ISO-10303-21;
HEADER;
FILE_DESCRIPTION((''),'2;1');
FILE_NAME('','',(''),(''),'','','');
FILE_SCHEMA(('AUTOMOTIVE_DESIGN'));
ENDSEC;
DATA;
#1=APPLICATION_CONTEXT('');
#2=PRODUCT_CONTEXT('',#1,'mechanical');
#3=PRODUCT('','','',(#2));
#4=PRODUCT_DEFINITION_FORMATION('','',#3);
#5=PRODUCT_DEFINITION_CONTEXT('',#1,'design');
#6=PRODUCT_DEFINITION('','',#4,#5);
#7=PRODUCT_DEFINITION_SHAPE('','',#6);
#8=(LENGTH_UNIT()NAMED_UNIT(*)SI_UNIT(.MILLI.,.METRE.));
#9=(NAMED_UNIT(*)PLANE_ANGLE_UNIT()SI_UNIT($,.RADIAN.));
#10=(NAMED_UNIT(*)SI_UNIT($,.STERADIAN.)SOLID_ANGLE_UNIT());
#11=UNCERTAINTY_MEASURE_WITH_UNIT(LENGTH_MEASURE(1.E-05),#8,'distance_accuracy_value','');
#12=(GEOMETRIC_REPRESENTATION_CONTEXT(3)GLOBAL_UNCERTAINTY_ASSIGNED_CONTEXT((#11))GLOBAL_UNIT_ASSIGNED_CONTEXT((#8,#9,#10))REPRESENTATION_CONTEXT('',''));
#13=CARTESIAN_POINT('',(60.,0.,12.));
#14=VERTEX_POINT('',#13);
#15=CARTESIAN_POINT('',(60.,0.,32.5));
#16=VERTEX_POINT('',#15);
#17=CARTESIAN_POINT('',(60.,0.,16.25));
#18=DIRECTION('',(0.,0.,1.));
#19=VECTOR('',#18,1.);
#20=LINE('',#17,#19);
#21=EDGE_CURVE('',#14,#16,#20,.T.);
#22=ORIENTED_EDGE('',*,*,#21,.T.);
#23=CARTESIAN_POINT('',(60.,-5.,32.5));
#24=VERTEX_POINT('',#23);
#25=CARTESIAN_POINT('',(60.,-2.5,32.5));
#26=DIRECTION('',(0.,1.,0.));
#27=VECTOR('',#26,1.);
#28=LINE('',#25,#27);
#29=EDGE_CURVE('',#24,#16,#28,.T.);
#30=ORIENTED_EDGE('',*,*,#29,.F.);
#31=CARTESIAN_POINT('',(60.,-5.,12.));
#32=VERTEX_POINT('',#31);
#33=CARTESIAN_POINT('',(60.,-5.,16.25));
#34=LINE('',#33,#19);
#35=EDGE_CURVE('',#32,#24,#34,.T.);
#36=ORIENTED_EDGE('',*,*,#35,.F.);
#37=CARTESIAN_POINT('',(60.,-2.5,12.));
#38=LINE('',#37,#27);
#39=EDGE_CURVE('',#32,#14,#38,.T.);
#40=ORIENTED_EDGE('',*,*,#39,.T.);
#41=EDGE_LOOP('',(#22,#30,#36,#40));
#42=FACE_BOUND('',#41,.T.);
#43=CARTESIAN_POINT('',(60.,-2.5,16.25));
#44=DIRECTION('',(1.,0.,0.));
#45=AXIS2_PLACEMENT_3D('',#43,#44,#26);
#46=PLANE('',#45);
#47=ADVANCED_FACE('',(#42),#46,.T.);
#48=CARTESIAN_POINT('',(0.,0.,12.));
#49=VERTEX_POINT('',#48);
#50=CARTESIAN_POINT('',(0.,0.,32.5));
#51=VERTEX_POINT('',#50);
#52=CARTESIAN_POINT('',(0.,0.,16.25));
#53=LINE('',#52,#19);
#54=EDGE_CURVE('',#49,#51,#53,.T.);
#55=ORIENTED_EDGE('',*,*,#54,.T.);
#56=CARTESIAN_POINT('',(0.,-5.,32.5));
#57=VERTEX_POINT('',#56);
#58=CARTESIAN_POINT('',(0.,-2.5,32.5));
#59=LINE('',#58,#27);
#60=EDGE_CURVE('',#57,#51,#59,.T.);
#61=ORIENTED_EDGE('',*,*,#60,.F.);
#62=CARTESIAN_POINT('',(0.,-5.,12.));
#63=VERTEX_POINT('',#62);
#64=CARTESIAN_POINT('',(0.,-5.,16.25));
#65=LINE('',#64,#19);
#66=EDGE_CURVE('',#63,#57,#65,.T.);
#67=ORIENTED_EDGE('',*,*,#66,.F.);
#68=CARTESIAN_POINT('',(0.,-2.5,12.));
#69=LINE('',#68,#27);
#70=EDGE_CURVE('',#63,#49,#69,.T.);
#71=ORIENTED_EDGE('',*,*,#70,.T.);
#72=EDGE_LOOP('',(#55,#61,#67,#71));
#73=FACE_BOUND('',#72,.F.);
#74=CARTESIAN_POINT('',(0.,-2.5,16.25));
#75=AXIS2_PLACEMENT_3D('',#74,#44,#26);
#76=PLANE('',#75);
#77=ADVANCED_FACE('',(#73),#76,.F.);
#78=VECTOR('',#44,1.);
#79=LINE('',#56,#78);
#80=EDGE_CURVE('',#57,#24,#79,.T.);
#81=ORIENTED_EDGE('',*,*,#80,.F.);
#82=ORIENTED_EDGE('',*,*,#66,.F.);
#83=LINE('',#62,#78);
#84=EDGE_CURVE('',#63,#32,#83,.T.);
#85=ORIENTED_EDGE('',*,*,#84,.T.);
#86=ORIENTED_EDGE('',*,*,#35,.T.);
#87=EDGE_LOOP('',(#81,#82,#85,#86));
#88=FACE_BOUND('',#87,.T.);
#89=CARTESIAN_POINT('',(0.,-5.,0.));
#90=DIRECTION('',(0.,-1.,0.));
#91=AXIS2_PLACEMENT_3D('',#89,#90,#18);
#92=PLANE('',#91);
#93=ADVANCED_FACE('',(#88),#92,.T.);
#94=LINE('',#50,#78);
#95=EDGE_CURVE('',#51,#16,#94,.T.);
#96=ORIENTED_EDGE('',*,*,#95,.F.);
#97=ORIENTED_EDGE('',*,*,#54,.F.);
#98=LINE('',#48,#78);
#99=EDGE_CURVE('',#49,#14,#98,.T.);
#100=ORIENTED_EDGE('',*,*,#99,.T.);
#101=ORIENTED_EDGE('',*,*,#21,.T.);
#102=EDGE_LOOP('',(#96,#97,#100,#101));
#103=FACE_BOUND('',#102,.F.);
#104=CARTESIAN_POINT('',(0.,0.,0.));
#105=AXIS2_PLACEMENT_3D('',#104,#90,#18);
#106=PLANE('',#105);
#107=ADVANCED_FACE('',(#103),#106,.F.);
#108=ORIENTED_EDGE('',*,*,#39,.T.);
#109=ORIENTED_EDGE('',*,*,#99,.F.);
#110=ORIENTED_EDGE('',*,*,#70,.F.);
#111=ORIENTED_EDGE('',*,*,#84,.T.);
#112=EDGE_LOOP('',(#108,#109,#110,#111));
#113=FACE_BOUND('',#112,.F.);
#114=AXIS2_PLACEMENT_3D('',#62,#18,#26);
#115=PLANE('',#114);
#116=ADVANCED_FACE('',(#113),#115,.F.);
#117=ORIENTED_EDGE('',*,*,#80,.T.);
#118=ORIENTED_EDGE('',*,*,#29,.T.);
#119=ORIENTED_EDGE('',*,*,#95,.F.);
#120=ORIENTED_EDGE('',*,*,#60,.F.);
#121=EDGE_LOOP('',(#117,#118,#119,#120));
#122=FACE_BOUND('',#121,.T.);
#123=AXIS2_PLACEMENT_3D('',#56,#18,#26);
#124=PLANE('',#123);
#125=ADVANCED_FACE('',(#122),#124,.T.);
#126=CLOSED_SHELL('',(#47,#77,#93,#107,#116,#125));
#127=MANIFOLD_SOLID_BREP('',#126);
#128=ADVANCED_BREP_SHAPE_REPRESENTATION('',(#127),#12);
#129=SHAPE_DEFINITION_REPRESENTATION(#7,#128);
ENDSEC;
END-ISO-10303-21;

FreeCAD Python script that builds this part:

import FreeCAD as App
import Part
import Sketcher
from FreeCAD import Vector


def add_polygon(sketch, points):
    """Adds a closed chain of lines whose ends are joined by coincident constraints."""
    first, n = sketch.GeometryCount, len(points)
    for a, b in zip(points, points[1:] + points[:1]):
        sketch.addGeometry(Part.LineSegment(App.Vector(*a, 0), App.Vector(*b, 0)), False)
    for i in range(n):
        sketch.addConstraint(Sketcher.Constraint("Coincident", first + i, 2, first + (i + 1) % n, 1))

doc = App.newDocument("Part")
body = doc.addObject("PartDesign::Body", "Body")

sketch1 = body.newObject("Sketcher::SketchObject", "Sketch")
sketch1.AttachmentSupport = (doc.getObject("YZ_Plane"), [""])
sketch1.MapMode = "FlatFace"
add_polygon(sketch1, [(-5, 32.5), (-5, 0), (0, 0), (0, 32.5)])
sketch1.addConstraint([
    Sketcher.Constraint("Vertical", 0),
    Sketcher.Constraint("Horizontal", 1),
    Sketcher.Constraint("Vertical", 2),
    Sketcher.Constraint("Horizontal", 3),
    Sketcher.Constraint("Coincident", 1, 2, -1, 1),
    Sketcher.Constraint("DistanceX", 1, 1, 1, 2, 5.0),
    Sketcher.Constraint("DistanceY", 0, 2, 0, 1, 32.5),
])
pad1 = body.newObject("PartDesign::Pad", "Pad")
pad1.Profile = sketch1
pad1.Length = 60

sketch2 = body.newObject("Sketcher::SketchObject", "Sketch001")
sketch2.AttachmentSupport = (doc.getObject("YZ_Plane"), [""])
sketch2.MapMode = "FlatFace"
add_polygon(sketch2, [(-5, 12), (-5, 0), (0, 0), (0, 12)])
sketch2.addConstraint([
    Sketcher.Constraint("Vertical", 0),
    Sketcher.Constraint("Horizontal", 1),
    Sketcher.Constraint("Vertical", 2),
    Sketcher.Constraint("Horizontal", 3),
    Sketcher.Constraint("Coincident", 1, 2, -1, 1),
    Sketcher.Constraint("DistanceX", 1, 1, 1, 2, 5.0),
    Sketcher.Constraint("DistanceY", 0, 2, 0, 1, 12.0),
])
pocket1 = body.newObject("PartDesign::Pocket", "Pocket")
pocket1.Profile = sketch2
pocket1.Length = 60
pocket1.Reversed = True

doc.recompute()
